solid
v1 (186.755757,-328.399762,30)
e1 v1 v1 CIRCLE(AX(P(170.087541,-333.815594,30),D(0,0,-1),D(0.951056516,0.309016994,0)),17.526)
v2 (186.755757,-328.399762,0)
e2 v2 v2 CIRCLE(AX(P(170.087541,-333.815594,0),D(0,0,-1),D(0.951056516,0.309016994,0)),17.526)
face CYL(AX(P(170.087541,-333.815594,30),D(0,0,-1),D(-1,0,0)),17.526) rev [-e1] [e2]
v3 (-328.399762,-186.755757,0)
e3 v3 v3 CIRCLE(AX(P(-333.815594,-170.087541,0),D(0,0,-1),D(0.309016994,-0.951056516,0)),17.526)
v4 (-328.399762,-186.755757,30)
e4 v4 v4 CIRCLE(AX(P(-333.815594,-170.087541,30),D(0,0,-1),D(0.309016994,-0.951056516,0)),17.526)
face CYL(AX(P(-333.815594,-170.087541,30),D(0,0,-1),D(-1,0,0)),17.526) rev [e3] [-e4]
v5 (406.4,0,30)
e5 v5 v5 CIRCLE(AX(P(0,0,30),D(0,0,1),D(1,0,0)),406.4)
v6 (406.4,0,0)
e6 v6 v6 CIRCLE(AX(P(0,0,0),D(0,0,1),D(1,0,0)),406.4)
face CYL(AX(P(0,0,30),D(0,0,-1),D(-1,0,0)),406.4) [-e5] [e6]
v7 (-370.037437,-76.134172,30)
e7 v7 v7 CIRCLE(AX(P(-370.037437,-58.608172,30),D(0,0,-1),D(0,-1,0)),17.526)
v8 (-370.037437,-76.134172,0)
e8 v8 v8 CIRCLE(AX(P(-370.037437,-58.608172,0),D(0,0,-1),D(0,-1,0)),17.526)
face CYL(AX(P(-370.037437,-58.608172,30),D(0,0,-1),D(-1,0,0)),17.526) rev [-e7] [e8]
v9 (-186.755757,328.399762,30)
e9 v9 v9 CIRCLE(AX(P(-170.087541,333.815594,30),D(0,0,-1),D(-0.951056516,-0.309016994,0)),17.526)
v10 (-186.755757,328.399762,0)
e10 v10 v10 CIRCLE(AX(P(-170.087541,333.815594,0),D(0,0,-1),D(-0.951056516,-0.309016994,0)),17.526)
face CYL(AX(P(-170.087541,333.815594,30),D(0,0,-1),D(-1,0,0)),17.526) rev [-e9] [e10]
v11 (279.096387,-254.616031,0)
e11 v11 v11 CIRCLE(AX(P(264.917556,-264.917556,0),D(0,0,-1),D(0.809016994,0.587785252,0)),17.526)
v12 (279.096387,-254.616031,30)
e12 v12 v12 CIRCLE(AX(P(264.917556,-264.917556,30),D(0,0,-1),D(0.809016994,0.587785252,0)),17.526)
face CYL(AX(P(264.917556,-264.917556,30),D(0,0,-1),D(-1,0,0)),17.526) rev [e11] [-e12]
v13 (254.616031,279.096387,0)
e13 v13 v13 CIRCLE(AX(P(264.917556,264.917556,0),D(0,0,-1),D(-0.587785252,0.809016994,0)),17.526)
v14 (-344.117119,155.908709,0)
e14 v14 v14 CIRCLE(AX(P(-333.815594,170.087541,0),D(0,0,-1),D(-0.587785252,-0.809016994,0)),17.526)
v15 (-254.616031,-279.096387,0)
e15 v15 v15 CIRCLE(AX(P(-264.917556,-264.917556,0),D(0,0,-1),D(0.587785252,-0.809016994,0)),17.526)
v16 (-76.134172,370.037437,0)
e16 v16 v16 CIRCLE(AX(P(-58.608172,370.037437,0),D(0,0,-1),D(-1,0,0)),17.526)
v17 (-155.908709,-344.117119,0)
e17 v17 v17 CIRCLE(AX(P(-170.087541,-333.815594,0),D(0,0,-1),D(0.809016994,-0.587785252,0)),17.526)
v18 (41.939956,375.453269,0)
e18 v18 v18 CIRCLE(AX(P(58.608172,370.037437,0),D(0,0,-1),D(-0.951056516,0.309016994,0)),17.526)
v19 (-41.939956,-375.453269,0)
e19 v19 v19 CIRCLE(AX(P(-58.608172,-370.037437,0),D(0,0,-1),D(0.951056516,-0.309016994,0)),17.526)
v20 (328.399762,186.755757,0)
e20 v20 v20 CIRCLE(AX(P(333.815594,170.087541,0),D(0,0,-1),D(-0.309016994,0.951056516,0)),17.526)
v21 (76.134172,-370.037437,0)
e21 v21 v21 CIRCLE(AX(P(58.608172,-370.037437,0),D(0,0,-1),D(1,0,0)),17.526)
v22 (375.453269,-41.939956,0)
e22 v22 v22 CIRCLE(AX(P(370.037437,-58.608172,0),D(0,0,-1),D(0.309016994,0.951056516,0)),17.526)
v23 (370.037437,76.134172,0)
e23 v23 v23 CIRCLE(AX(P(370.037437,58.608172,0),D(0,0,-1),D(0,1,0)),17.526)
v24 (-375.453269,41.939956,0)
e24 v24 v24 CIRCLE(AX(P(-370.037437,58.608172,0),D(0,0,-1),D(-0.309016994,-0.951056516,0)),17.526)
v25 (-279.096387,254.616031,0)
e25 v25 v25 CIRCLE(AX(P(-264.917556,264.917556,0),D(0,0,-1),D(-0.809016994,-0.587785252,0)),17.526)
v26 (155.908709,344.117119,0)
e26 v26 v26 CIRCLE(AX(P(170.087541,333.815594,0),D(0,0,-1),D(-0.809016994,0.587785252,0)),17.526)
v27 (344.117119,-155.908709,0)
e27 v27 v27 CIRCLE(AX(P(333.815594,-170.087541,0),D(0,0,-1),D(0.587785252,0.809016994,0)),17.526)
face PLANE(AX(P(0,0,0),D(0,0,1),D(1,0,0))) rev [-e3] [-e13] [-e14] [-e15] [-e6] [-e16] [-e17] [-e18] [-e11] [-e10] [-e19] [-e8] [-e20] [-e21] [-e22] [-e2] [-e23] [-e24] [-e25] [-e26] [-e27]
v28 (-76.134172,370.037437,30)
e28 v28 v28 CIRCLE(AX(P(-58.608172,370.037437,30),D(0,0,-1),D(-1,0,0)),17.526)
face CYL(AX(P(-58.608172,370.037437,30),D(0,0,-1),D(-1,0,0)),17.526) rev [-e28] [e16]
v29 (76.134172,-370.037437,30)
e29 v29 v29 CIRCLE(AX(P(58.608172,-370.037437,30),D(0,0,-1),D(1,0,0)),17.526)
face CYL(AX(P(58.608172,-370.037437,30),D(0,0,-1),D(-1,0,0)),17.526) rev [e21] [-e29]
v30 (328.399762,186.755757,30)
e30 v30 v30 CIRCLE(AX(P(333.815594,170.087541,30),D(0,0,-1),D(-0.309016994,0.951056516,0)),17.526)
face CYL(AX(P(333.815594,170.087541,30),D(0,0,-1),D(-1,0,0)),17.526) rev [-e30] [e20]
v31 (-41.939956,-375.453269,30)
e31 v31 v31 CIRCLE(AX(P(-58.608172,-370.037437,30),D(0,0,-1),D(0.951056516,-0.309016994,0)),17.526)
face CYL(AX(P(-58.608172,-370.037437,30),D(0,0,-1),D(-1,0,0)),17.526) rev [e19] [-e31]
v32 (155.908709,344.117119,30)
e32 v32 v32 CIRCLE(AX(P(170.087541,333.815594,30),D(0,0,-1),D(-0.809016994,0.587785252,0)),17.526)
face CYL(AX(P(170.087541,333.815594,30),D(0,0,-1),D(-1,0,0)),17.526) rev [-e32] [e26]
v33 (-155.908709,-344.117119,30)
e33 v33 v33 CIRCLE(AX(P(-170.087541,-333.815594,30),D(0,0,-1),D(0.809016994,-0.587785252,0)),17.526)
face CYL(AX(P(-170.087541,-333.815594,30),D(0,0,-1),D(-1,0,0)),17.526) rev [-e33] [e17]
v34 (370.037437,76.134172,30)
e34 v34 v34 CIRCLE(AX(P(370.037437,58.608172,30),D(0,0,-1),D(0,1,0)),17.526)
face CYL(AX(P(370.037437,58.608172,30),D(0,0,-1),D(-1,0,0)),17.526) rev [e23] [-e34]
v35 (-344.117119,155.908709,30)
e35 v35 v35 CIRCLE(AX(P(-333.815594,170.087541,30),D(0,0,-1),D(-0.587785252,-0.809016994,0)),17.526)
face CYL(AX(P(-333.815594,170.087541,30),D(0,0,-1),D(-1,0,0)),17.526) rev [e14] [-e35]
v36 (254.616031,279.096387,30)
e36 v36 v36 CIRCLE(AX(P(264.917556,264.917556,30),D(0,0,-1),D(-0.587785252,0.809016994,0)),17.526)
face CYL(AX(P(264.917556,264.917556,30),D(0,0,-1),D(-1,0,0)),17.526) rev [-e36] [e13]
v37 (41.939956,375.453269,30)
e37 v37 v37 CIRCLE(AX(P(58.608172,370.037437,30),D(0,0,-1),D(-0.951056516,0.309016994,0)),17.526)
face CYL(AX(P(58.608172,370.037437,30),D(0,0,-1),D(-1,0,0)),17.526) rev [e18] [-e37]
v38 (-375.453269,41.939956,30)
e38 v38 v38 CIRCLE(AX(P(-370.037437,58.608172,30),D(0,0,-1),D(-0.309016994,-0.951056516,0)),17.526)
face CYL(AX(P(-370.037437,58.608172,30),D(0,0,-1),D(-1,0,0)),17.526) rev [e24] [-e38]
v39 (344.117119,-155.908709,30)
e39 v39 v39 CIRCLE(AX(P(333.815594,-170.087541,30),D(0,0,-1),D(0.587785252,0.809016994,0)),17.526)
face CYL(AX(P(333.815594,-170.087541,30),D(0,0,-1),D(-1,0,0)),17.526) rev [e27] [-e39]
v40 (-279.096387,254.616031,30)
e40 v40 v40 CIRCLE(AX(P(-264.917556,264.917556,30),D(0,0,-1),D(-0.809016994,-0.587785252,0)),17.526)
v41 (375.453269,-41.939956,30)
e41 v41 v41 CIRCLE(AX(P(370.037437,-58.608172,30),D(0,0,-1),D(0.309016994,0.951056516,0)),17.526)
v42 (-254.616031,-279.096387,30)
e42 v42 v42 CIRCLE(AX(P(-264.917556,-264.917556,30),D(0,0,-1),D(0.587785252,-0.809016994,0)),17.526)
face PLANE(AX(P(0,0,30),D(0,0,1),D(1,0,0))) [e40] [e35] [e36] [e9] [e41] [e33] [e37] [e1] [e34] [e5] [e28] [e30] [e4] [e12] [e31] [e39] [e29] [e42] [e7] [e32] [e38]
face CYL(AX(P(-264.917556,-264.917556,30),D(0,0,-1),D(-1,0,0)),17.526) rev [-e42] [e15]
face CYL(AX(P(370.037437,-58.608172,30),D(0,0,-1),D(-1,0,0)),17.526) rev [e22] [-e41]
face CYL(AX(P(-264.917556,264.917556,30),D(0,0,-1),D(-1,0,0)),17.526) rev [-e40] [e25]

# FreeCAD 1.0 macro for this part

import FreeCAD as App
import Part
import Sketcher

doc = App.newDocument("Part")
body = doc.addObject("PartDesign::Body", "Body")

# Sketch on XY plane
sketch1 = body.newObject("Sketcher::SketchObject", "Sketch")
sketch1.AttachmentSupport = (doc.getObject("XY_Plane"), [""])
sketch1.MapMode = "FlatFace"
sketch1.addGeometry(Part.Circle(App.Vector(0, 0, 0), App.Vector(0, 0, 1), 406), False)
sketch1.addConstraint([
    Sketcher.Constraint("Coincident", 0, 3, -1, 1),
    Sketcher.Constraint("Diameter", 0, 812.8),
])
pad1 = body.newObject("PartDesign::Pad", "Pad")
pad1.Profile = sketch1
pad1.Length = 30

# Sketch on XY plane
sketch2 = body.newObject("Sketcher::SketchObject", "Sketch001")
sketch2.AttachmentSupport = (doc.getObject("XY_Plane"), [""])
sketch2.MapMode = "FlatFace"
sketch2.addGeometry(Part.Circle(App.Vector(-59, 370, 0), App.Vector(0, 0, 1), 18), False)
sketch2.addConstraint([
    Sketcher.Constraint("Diameter", 0, 35.052),
    Sketcher.Constraint("DistanceX", 0, 3, -1, 1, 58.608172),
    Sketcher.Constraint("DistanceY", -1, 1, 0, 3, 370.037437),
])
pocket1 = body.newObject("PartDesign::Pocket", "Pocket")
pocket1.Profile = sketch2
pocket1.Type = "ThroughAll"
pocket1.Reversed = True
doc.recompute()

polarpattern = body.newObject("PartDesign::PolarPattern", "PolarPattern")
polarpattern.Originals = [pocket1]
polarpattern.Axis = (doc.getObject("Z_Axis"), [""])
polarpattern.Angle = 360
polarpattern.Occurrences = 20
body.Tip = polarpattern

doc.recompute()
